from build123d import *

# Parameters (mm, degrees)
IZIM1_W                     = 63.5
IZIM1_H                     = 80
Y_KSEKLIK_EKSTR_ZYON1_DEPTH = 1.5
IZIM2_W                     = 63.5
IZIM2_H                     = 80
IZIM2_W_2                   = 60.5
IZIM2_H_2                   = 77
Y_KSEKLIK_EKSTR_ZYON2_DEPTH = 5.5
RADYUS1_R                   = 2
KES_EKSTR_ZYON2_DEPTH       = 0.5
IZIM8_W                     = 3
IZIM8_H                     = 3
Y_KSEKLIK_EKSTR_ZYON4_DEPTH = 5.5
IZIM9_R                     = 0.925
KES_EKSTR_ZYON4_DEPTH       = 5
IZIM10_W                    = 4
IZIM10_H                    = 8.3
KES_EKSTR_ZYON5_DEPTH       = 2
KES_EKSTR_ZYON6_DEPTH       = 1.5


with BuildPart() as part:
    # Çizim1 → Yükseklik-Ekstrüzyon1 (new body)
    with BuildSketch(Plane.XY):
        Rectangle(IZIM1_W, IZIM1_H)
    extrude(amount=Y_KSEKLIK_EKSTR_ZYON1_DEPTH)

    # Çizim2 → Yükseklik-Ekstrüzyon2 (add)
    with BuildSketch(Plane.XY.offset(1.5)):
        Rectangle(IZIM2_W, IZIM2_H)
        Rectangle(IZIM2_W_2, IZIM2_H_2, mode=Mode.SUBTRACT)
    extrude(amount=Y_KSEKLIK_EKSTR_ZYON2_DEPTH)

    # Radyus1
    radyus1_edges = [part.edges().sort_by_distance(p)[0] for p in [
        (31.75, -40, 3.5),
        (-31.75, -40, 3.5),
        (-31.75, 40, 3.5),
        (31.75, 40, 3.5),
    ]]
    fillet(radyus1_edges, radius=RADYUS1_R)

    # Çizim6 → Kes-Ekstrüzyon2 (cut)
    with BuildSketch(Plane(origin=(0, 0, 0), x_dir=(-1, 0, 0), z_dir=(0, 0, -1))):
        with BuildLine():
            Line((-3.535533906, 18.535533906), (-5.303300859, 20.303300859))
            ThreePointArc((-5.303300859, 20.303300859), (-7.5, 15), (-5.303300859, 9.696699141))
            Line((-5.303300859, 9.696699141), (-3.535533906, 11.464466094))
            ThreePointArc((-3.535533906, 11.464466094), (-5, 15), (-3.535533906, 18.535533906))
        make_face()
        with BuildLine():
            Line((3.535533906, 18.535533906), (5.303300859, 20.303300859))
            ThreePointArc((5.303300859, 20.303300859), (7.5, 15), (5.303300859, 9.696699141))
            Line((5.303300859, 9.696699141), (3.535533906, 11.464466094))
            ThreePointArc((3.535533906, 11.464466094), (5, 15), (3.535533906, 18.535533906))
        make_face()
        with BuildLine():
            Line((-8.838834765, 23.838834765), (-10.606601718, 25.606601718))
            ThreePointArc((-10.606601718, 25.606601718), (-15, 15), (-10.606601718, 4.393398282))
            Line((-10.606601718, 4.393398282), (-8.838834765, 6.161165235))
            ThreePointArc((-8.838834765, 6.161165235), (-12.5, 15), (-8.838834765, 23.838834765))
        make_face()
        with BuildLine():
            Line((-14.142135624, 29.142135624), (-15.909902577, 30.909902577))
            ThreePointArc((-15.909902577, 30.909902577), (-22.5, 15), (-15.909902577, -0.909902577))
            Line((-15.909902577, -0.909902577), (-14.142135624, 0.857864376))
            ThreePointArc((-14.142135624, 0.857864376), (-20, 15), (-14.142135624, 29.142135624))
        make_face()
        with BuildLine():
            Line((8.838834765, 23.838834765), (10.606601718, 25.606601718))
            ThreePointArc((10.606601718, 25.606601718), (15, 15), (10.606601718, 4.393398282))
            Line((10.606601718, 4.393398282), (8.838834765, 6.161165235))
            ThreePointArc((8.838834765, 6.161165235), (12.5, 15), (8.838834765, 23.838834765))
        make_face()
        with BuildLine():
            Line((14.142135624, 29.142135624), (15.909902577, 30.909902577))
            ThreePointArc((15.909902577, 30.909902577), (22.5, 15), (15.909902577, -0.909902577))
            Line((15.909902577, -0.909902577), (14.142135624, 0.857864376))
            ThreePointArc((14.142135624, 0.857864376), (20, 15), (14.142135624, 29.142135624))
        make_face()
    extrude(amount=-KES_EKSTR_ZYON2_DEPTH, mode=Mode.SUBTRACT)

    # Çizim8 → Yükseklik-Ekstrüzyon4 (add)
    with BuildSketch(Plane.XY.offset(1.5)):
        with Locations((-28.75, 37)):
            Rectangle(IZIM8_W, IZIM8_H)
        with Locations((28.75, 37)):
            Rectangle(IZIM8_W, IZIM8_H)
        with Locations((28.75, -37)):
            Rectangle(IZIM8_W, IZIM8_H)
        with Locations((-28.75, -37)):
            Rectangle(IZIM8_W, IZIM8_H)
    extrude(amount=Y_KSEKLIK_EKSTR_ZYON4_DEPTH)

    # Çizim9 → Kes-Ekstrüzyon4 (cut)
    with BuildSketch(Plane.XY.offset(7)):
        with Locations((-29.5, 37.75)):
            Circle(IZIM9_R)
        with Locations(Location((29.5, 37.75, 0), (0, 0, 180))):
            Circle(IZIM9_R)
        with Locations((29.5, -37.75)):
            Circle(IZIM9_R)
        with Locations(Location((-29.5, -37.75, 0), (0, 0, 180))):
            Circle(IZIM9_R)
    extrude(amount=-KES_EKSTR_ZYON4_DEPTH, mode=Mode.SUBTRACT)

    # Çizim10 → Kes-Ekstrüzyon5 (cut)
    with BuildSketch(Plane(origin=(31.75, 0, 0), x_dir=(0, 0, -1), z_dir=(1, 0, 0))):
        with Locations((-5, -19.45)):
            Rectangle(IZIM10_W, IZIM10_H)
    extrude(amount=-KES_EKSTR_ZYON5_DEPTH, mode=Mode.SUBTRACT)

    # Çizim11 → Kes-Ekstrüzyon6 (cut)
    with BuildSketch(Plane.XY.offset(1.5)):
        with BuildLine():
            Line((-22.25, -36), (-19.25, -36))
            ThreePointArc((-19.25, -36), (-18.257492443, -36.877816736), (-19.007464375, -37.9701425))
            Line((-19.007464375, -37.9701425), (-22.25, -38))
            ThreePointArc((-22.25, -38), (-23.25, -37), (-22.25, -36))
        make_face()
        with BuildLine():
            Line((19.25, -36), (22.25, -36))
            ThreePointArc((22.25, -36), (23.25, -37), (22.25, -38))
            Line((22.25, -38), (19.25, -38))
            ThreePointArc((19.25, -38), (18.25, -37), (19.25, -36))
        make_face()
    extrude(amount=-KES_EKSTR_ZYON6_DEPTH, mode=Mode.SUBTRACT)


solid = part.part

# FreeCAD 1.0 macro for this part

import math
import FreeCAD as App
import Part
import Sketcher
from FreeCAD import Vector
Q = App.Units.Quantity


def edges_at(feature, points):
    """Names of the edges that pass closest to the given points."""
    edges = feature.Shape.Edges
    near = lambda p: min(range(len(edges)), key=lambda i: edges[i].distToShape(Part.Vertex(*p))[0])
    return sorted({f"Edge{near(p) + 1}" for p in points})

doc = App.newDocument("Part")
body = doc.addObject("PartDesign::Body", "Body")

# Sketch on XY plane
sketch1 = body.newObject("Sketcher::SketchObject", "Sketch")
sketch1.AttachmentSupport = (doc.getObject("XY_Plane"), [""])
sketch1.MapMode = "FlatFace"
sketch1.addGeometry([
    Part.LineSegment(Vector(-32, 40, 0), Vector(-32, -40, 0)),
    Part.LineSegment(Vector(-32, -40, 0), Vector(32, -40, 0)),
    Part.LineSegment(Vector(32, -40, 0), Vector(32, 40, 0)),
    Part.LineSegment(Vector(32, 40, 0), Vector(-32, 40, 0)),
], False)
sketch1.addConstraint([
    Sketcher.Constraint("Coincident", 0, 2, 1, 1),
    Sketcher.Constraint("Coincident", 1, 2, 2, 1),
    Sketcher.Constraint("Coincident", 2, 2, 3, 1),
    Sketcher.Constraint("Coincident", 3, 2, 0, 1),
    Sketcher.Constraint("Vertical", 0),
    Sketcher.Constraint("Horizontal", 1),
    Sketcher.Constraint("Vertical", 2),
    Sketcher.Constraint("Horizontal", 3),
    Sketcher.Constraint("Symmetric", 0, 2, 2, 2, -1, 1),
    Sketcher.Constraint("DistanceY", 0, 2, 0, 1, Q("80 mm")),
    Sketcher.Constraint("DistanceX", 1, 1, 1, 2, Q("63.5 mm")),
])
pad1 = body.newObject("PartDesign::Pad", "Pad")
pad1.Profile = sketch1
pad1.Length = 1.5

# Sketch on XY plane
sketch2 = body.newObject("Sketcher::SketchObject", "Sketch001")
sketch2.AttachmentSupport = (doc.getObject("XY_Plane"), [""])
sketch2.MapMode = "FlatFace"
sketch2.AttachmentOffset = App.Placement(Vector(0, 0, 1.5), App.Rotation())
sketch2.addGeometry([
    Part.LineSegment(Vector(-32, 40, 0), Vector(-32, -40, 0)),  # 0
    Part.LineSegment(Vector(-32, -40, 0), Vector(32, -40, 0)),  # 1
    Part.LineSegment(Vector(32, -40, 0), Vector(32, 40, 0)),  # 2
    Part.LineSegment(Vector(32, 40, 0), Vector(-32, 40, 0)),  # 3
    Part.LineSegment(Vector(30, -38, 0), Vector(-30, -38, 0)),  # 4
    Part.LineSegment(Vector(-30, -38, 0), Vector(-30, 38, 0)),  # 5
    Part.LineSegment(Vector(-30, 38, 0), Vector(30, 38, 0)),  # 6
    Part.LineSegment(Vector(30, 38, 0), Vector(30, -38, 0)),  # 7
], False)
sketch2.addConstraint([
    Sketcher.Constraint("Coincident", 0, 2, 1, 1),
    Sketcher.Constraint("Coincident", 1, 2, 2, 1),
    Sketcher.Constraint("Coincident", 2, 2, 3, 1),
    Sketcher.Constraint("Coincident", 3, 2, 0, 1),
    Sketcher.Constraint("Coincident", 4, 2, 5, 1),
    Sketcher.Constraint("Coincident", 5, 2, 6, 1),
    Sketcher.Constraint("Coincident", 6, 2, 7, 1),
    Sketcher.Constraint("Coincident", 7, 2, 4, 1),
    Sketcher.Constraint("Vertical", 0),
    Sketcher.Constraint("Horizontal", 1),
    Sketcher.Constraint("Vertical", 2),
    Sketcher.Constraint("Horizontal", 3),
    Sketcher.Constraint("Horizontal", 4),
    Sketcher.Constraint("Vertical", 5),
    Sketcher.Constraint("Horizontal", 6),
    Sketcher.Constraint("Vertical", 7),
    Sketcher.Constraint("Symmetric", 0, 2, 2, 2, -1, 1),
    Sketcher.Constraint("Symmetric", 4, 2, 6, 2, -1, 1),
    Sketcher.Constraint("DistanceY", 0, 2, 0, 1, Q("80 mm")),
    Sketcher.Constraint("DistanceY", 5, 1, 5, 2, Q("77 mm")),
    Sketcher.Constraint("DistanceX", 1, 1, 1, 2, Q("63.5 mm")),
    Sketcher.Constraint("DistanceX", 4, 2, 4, 1, Q("60.5 mm")),
])
pad2 = body.newObject("PartDesign::Pad", "Pad001")
pad2.Profile = sketch2
pad2.Length = 5.5
doc.recompute()

fillet = body.newObject("PartDesign::Fillet", "Fillet")
fillet.Base = (pad2, edges_at(pad2, [
    (31.75, -40, 3.5),
    (-31.75, -40, 3.5),
    (-31.75, 40, 3.5),
    (31.75, 40, 3.5),
]))
fillet.Radius = 2

# Sketch on XY plane
sketch3 = body.newObject("Sketcher::SketchObject", "Sketch002")
sketch3.AttachmentSupport = (doc.getObject("XY_Plane"), [""])
sketch3.MapMode = "FlatFace"
sketch3.addGeometry([
    Part.LineSegment(Vector(3.5, 18.5, 0), Vector(5.3, 20.3, 0)),  # 0
    Part.ArcOfCircle(Part.Circle(Vector(0, 15, 0), Vector(0, 0, 1), 7.5), math.radians(-45), math.radians(45)),  # 1
    Part.LineSegment(Vector(5.3, 9.7, 0), Vector(3.5, 11.5, 0)),  # 2
    Part.ArcOfCircle(Part.Circle(Vector(0, 15, 0), Vector(0, 0, 1), 5), math.radians(-45), math.radians(45)),  # 3
    Part.LineSegment(Vector(-5.3, 20.3, 0), Vector(-3.5, 18.5, 0)),  # 4
    Part.ArcOfCircle(Part.Circle(Vector(0, 15, 0), Vector(0, 0, 1), 5), math.radians(135), math.radians(225)),  # 5
    Part.LineSegment(Vector(-3.5, 11.5, 0), Vector(-5.3, 9.7, 0)),  # 6
    Part.ArcOfCircle(Part.Circle(Vector(0, 15, 0), Vector(0, 0, 1), 7.5), math.radians(135), math.radians(225)),  # 7
    Part.LineSegment(Vector(8.8, 23.8, 0), Vector(10.6, 25.6, 0)),  # 8
    Part.ArcOfCircle(Part.Circle(Vector(0, 15, 0), Vector(0, 0, 1), 15), math.radians(-45), math.radians(45)),  # 9
    Part.LineSegment(Vector(10.6, 4.4, 0), Vector(8.8, 6.2, 0)),  # 10
    Part.ArcOfCircle(Part.Circle(Vector(0, 15, 0), Vector(0, 0, 1), 12.5), math.radians(-45), math.radians(45)),  # 11
    Part.LineSegment(Vector(14.1, 29.1, 0), Vector(15.9, 30.9, 0)),  # 12
    Part.ArcOfCircle(Part.Circle(Vector(0, 15, 0), Vector(0, 0, 1), 22.5), math.radians(-45), math.radians(45)),  # 13
    Part.LineSegment(Vector(15.9, -0.9, 0), Vector(14.1, 0.9, 0)),  # 14
    Part.ArcOfCircle(Part.Circle(Vector(0, 15, 0), Vector(0, 0, 1), 20), math.radians(-45), math.radians(45)),  # 15
    Part.LineSegment(Vector(-10.6, 25.6, 0), Vector(-8.8, 23.8, 0)),  # 16
    Part.ArcOfCircle(Part.Circle(Vector(0, 15, 0), Vector(0, 0, 1), 12.5), math.radians(135), math.radians(225)),  # 17
    Part.LineSegment(Vector(-8.8, 6.2, 0), Vector(-10.6, 4.4, 0)),  # 18
    Part.ArcOfCircle(Part.Circle(Vector(0, 15, 0), Vector(0, 0, 1), 15), math.radians(135), math.radians(225)),  # 19
    Part.LineSegment(Vector(-15.9, 30.9, 0), Vector(-14.1, 29.1, 0)),  # 20
    Part.ArcOfCircle(Part.Circle(Vector(0, 15, 0), Vector(0, 0, 1), 20), math.radians(135), math.radians(225)),  # 21
    Part.LineSegment(Vector(-14.1, 0.9, 0), Vector(-15.9, -0.9, 0)),  # 22
    Part.ArcOfCircle(Part.Circle(Vector(0, 15, 0), Vector(0, 0, 1), 22.5), math.radians(135), math.radians(225)),  # 23
], False)
sketch3.addConstraint([
    Sketcher.Constraint("Coincident", 0, 2, 1, 2),
    Sketcher.Constraint("Coincident", 1, 1, 2, 1),
    Sketcher.Constraint("Coincident", 2, 2, 3, 1),
    Sketcher.Constraint("Coincident", 3, 2, 0, 1),
    Sketcher.Constraint("Coincident", 4, 2, 5, 1),
    Sketcher.Constraint("Coincident", 5, 2, 6, 1),
    Sketcher.Constraint("Coincident", 6, 2, 7, 2),
    Sketcher.Constraint("Coincident", 7, 1, 4, 1),
    Sketcher.Constraint("Coincident", 8, 2, 9, 2),
    Sketcher.Constraint("Coincident", 9, 1, 10, 1),
    Sketcher.Constraint("Coincident", 10, 2, 11, 1),
    Sketcher.Constraint("Coincident", 11, 2, 8, 1),
    Sketcher.Constraint("Coincident", 12, 2, 13, 2),
    Sketcher.Constraint("Coincident", 13, 1, 14, 1),
    Sketcher.Constraint("Coincident", 14, 2, 15, 1),
    Sketcher.Constraint("Coincident", 15, 2, 12, 1),
    Sketcher.Constraint("Coincident", 16, 2, 17, 1),
    Sketcher.Constraint("Coincident", 17, 2, 18, 1),
    Sketcher.Constraint("Coincident", 18, 2, 19, 2),
    Sketcher.Constraint("Coincident", 19, 1, 16, 1),
    Sketcher.Constraint("Coincident", 20, 2, 21, 1),
    Sketcher.Constraint("Coincident", 21, 2, 22, 1),
    Sketcher.Constraint("Coincident", 22, 2, 23, 2),
    Sketcher.Constraint("Coincident", 23, 1, 20, 1),
    Sketcher.Constraint("Coincident", 3, 3, 1, 3),
    Sketcher.Constraint("Coincident", 5, 3, 1, 3),
    Sketcher.Constraint("Coincident", 7, 3, 1, 3),
    Sketcher.Constraint("Coincident", 9, 3, 1, 3),
    Sketcher.Constraint("Coincident", 11, 3, 1, 3),
    Sketcher.Constraint("Coincident", 13, 3, 1, 3),
    Sketcher.Constraint("Coincident", 15, 3, 1, 3),
    Sketcher.Constraint("Coincident", 17, 3, 1, 3),
    Sketcher.Constraint("Coincident", 19, 3, 1, 3),
    Sketcher.Constraint("Coincident", 21, 3, 1, 3),
    Sketcher.Constraint("Coincident", 23, 3, 1, 3),
    Sketcher.Constraint("Equal", 3, 5),
    Sketcher.Constraint("Equal", 1, 7),
    Sketcher.Constraint("Equal", 11, 17),
    Sketcher.Constraint("Equal", 9, 19),
    Sketcher.Constraint("Equal", 15, 21),
    Sketcher.Constraint("Equal", 13, 23),
    Sketcher.Constraint("Symmetric", 3, 2, 4, 2, -2),
    Sketcher.Constraint("Perpendicular", 0, 2),
    Sketcher.Constraint("Parallel", 2, 4),
    Sketcher.Constraint("Perpendicular", 4, 6),
    Sketcher.Constraint("Parallel", 6, 8),
    Sketcher.Constraint("Perpendicular", 8, 10),
    Sketcher.Constraint("Perpendicular", 10, 12),
    Sketcher.Constraint("Perpendicular", 12, 14),
    Sketcher.Constraint("Parallel", 14, 16),
    Sketcher.Constraint("Perpendicular", 16, 18),
    Sketcher.Constraint("Perpendicular", 18, 20),
    Sketcher.Constraint("Perpendicular", 20, 22),
    Sketcher.Constraint("Horizontal", 2, 2, 5, 2),
    Sketcher.Constraint("Horizontal", 1, 1, 6, 2),
    Sketcher.Constraint("Horizontal", 11, 2, 16, 2),
    Sketcher.Constraint("Horizontal", 10, 2, 17, 2),
    Sketcher.Constraint("Horizontal", 15, 2, 20, 2),
    Sketcher.Constraint("Horizontal", 14, 2, 21, 2),
    Sketcher.Constraint("Vertical", 0, 2, 1, 1),
    Sketcher.Constraint("Vertical", 8, 2, 9, 1),
    Sketcher.Constraint("Vertical", 12, 2, 13, 1),
    Sketcher.Constraint("Equal", 6, 8),
    Sketcher.Constraint("Equal", 10, 12),
    Sketcher.Constraint("Radius", 3, Q("5 mm")),
    Sketcher.Constraint("Radius", 9, Q("15 mm")),
    Sketcher.Constraint("Radius", 15, Q("20 mm")),
    Sketcher.Constraint("Radius", 1, Q("7.5 mm")),
    Sketcher.Constraint("DistanceY", -1, 1, 1, 3, Q("15 mm")),
    Sketcher.Constraint("DistanceX", -1, 1, 0, 2, Q("5.303301 mm")),
    Sketcher.Constraint("DistanceX", -1, 1, 8, 2, Q("10.606602 mm")),
    Sketcher.Constraint("DistanceX", 8, 2, 12, 2, Q("5.303301 mm")),
])
pocket1 = body.newObject("PartDesign::Pocket", "Pocket")
pocket1.Profile = sketch3
pocket1.Length = 0.5
pocket1.Reversed = True

# Sketch on XY plane
sketch4 = body.newObject("Sketcher::SketchObject", "Sketch003")
sketch4.AttachmentSupport = (doc.getObject("XY_Plane"), [""])
sketch4.MapMode = "FlatFace"
sketch4.AttachmentOffset = App.Placement(Vector(0, 0, 1.5), App.Rotation())
sketch4.addGeometry([
    Part.LineSegment(Vector(-30.2, 38.5, 0), Vector(-30.2, 35.5, 0)),  # 0
    Part.LineSegment(Vector(-30.2, 35.5, 0), Vector(-27.2, 35.5, 0)),  # 1
    Part.LineSegment(Vector(-27.2, 35.5, 0), Vector(-27.2, 38.5, 0)),  # 2
    Part.LineSegment(Vector(-27.2, 38.5, 0), Vector(-30.2, 38.5, 0)),  # 3
    Part.LineSegment(Vector(27.2, 38.5, 0), Vector(27.2, 35.5, 0)),  # 4
    Part.LineSegment(Vector(27.2, 35.5, 0), Vector(30.2, 35.5, 0)),  # 5
    Part.LineSegment(Vector(30.2, 35.5, 0), Vector(30.2, 38.5, 0)),  # 6
    Part.LineSegment(Vector(30.2, 38.5, 0), Vector(27.2, 38.5, 0)),  # 7
    Part.LineSegment(Vector(27.2, -35.5, 0), Vector(27.2, -38.5, 0)),  # 8
    Part.LineSegment(Vector(27.2, -38.5, 0), Vector(30.2, -38.5, 0)),  # 9
    Part.LineSegment(Vector(30.2, -38.5, 0), Vector(30.2, -35.5, 0)),  # 10
    Part.LineSegment(Vector(30.2, -35.5, 0), Vector(27.2, -35.5, 0)),  # 11
    Part.LineSegment(Vector(-30.2, -35.5, 0), Vector(-30.2, -38.5, 0)),  # 12
    Part.LineSegment(Vector(-30.2, -38.5, 0), Vector(-27.2, -38.5, 0)),  # 13
    Part.LineSegment(Vector(-27.2, -38.5, 0), Vector(-27.2, -35.5, 0)),  # 14
    Part.LineSegment(Vector(-27.2, -35.5, 0), Vector(-30.2, -35.5, 0)),  # 15
], False)
sketch4.addConstraint([
    Sketcher.Constraint("Coincident", 0, 2, 1, 1),
    Sketcher.Constraint("Coincident", 1, 2, 2, 1),
    Sketcher.Constraint("Coincident", 2, 2, 3, 1),
    Sketcher.Constraint("Coincident", 3, 2, 0, 1),
    Sketcher.Constraint("Coincident", 4, 2, 5, 1),
    Sketcher.Constraint("Coincident", 5, 2, 6, 1),
    Sketcher.Constraint("Coincident", 6, 2, 7, 1),
    Sketcher.Constraint("Coincident", 7, 2, 4, 1),
    Sketcher.Constraint("Coincident", 8, 2, 9, 1),
    Sketcher.Constraint("Coincident", 9, 2, 10, 1),
    Sketcher.Constraint("Coincident", 10, 2, 11, 1),
    Sketcher.Constraint("Coincident", 11, 2, 8, 1),
    Sketcher.Constraint("Coincident", 12, 2, 13, 1),
    Sketcher.Constraint("Coincident", 13, 2, 14, 1),
    Sketcher.Constraint("Coincident", 14, 2, 15, 1),
    Sketcher.Constraint("Coincident", 15, 2, 12, 1),
    Sketcher.Constraint("Vertical", 0),
    Sketcher.Constraint("Horizontal", 1),
    Sketcher.Constraint("Vertical", 2),
    Sketcher.Constraint("Horizontal", 3),
    Sketcher.Constraint("Vertical", 4),
    Sketcher.Constraint("Horizontal", 5),
    Sketcher.Constraint("Vertical", 6),
    Sketcher.Constraint("Horizontal", 7),
    Sketcher.Constraint("Vertical", 8),
    Sketcher.Constraint("Horizontal", 9),
    Sketcher.Constraint("Vertical", 10),
    Sketcher.Constraint("Horizontal", 11),
    Sketcher.Constraint("Vertical", 12),
    Sketcher.Constraint("Horizontal", 13),
    Sketcher.Constraint("Vertical", 14),
    Sketcher.Constraint("Horizontal", 15),
    Sketcher.Constraint("Symmetric", 2, 2, 8, 2, -1, 1),
    Sketcher.Constraint("Symmetric", 0, 2, 10, 2, -1, 1),
    Sketcher.Constraint("Symmetric", 6, 2, 12, 2, -1, 1),
    Sketcher.Constraint("Symmetric", 4, 2, 14, 2, -1, 1),
    Sketcher.Constraint("Symmetric", 1, 2, 4, 2, -2),
    Sketcher.Constraint("Symmetric", 3, 2, 6, 2, -2),
    Sketcher.Constraint("Equal", 15, 0),
    Sketcher.Constraint("DistanceX", 1, 1, 1, 2, Q("3 mm")),
    Sketcher.Constraint("DistanceY", 8, 2, 4, 2, Q("74 mm")),
    Sketcher.Constraint("DistanceX", 1, 2, 4, 2, Q("54.5 mm")),
])
pad3 = body.newObject("PartDesign::Pad", "Pad002")
pad3.Profile = sketch4
pad3.Length = 5.5

# Sketch on XY plane
sketch5 = body.newObject("Sketcher::SketchObject", "Sketch004")
sketch5.AttachmentSupport = (doc.getObject("XY_Plane"), [""])
sketch5.MapMode = "FlatFace"
sketch5.AttachmentOffset = App.Placement(Vector(0, 0, 7), App.Rotation())
sketch5.addGeometry([
    Part.Circle(Vector(-29.5, 37.8, 0), Vector(0, 0, 1), 0.9),
    Part.Circle(Vector(29.5, 37.8, 0), Vector(0, 0, 1), 0.9),
    Part.Circle(Vector(29.5, -37.8, 0), Vector(0, 0, 1), 0.9),
    Part.Circle(Vector(-29.5, -37.8, 0), Vector(0, 0, 1), 0.9),
], False)
sketch5.addConstraint([
    Sketcher.Constraint("Equal", 0, 1),
    Sketcher.Constraint("Equal", 1, 2),
    Sketcher.Constraint("Equal", 2, 3),
    Sketcher.Constraint("Symmetric", 0, 3, 2, 3, -1, 1),
    Sketcher.Constraint("Symmetric", 1, 3, 3, 3, -1, 1),
    Sketcher.Constraint("Symmetric", 0, 3, 1, 3, -2),
    Sketcher.Constraint("Diameter", 0, Q("1.85 mm")),
    Sketcher.Constraint("DistanceX", 0, 3, 1, 3, Q("59 mm")),
    Sketcher.Constraint("DistanceY", 2, 3, 1, 3, Q("75.5 mm")),
])
pocket2 = body.newObject("PartDesign::Pocket", "Pocket001")
pocket2.Profile = sketch5
pocket2.Length = 5

# Sketch on YZ plane
sketch6 = body.newObject("Sketcher::SketchObject", "Sketch005")
sketch6.AttachmentSupport = (doc.getObject("YZ_Plane"), [""])
sketch6.MapMode = "FlatFace"
sketch6.AttachmentOffset = App.Placement(Vector(0, 0, 31.75), App.Rotation())
sketch6.addGeometry([
    Part.LineSegment(Vector(-15.3, 7, 0), Vector(-23.6, 7, 0)),
    Part.LineSegment(Vector(-23.6, 7, 0), Vector(-23.6, 3, 0)),
    Part.LineSegment(Vector(-23.6, 3, 0), Vector(-15.3, 3, 0)),
    Part.LineSegment(Vector(-15.3, 3, 0), Vector(-15.3, 7, 0)),
], False)
sketch6.addConstraint([
    Sketcher.Constraint("Coincident", 0, 2, 1, 1),
    Sketcher.Constraint("Coincident", 1, 2, 2, 1),
    Sketcher.Constraint("Coincident", 2, 2, 3, 1),
    Sketcher.Constraint("Coincident", 3, 2, 0, 1),
    Sketcher.Constraint("Horizontal", 0),
    Sketcher.Constraint("Vertical", 1),
    Sketcher.Constraint("Horizontal", 2),
    Sketcher.Constraint("Vertical", 3),
    Sketcher.Constraint("DistanceY", 1, 2, 1, 1, Q("4 mm")),
    Sketcher.Constraint("DistanceX", 0, 2, 0, 1, Q("8.3 mm")),
    Sketcher.Constraint("DistanceY", -1, 1, 0, 2, Q("7 mm")),
    Sketcher.Constraint("DistanceX", 0, 2, -1, 1, Q("23.6 mm")),
])
pocket3 = body.newObject("PartDesign::Pocket", "Pocket002")
pocket3.Profile = sketch6
pocket3.Length = 2

# Sketch on XY plane
sketch7 = body.newObject("Sketcher::SketchObject", "Sketch006")
sketch7.AttachmentSupport = (doc.getObject("XY_Plane"), [""])
sketch7.MapMode = "FlatFace"
sketch7.AttachmentOffset = App.Placement(Vector(0, 0, 1.5), App.Rotation())
sketch7.addGeometry([
    Part.LineSegment(Vector(-19.2, -36, 0), Vector(-22.2, -36, 0)),  # 0
    Part.ArcOfCircle(Part.Circle(Vector(-22.2, -37, 0), Vector(0, 0, 1), 1), math.radians(90), math.radians(270)),  # 1
    Part.LineSegment(Vector(-22.2, -38, 0), Vector(-19, -38, 0)),  # 2
    Part.ArcOfCircle(Part.Circle(Vector(-19.2, -37, 0), Vector(0, 0, 1), 1), math.radians(-76), math.radians(90)),  # 3
    Part.LineSegment(Vector(22.2, -36, 0), Vector(19.2, -36, 0)),  # 4
    Part.ArcOfCircle(Part.Circle(Vector(19.2, -37, 0), Vector(0, 0, 1), 1), math.radians(90), math.radians(270)),  # 5
    Part.LineSegment(Vector(19.2, -38, 0), Vector(22.2, -38, 0)),  # 6
    Part.ArcOfCircle(Part.Circle(Vector(22.2, -37, 0), Vector(0, 0, 1), 1), math.radians(-90), math.radians(90)),  # 7
], False)
sketch7.addConstraint([
    Sketcher.Constraint("Tangent", 0, 2, 1, 1),
    Sketcher.Constraint("Coincident", 1, 2, 2, 1),
    Sketcher.Constraint("Coincident", 2, 2, 3, 1),
    Sketcher.Constraint("Tangent", 3, 2, 0, 1),
    Sketcher.Constraint("Tangent", 4, 2, 5, 1),
    Sketcher.Constraint("Tangent", 5, 2, 6, 1),
    Sketcher.Constraint("Tangent", 6, 2, 7, 1),
    Sketcher.Constraint("Tangent", 7, 2, 4, 1),
    Sketcher.Constraint("Horizontal", 0),
    Sketcher.Constraint("Horizontal", 4),
    Sketcher.Constraint("Horizontal", 6),
    Sketcher.Constraint("Equal", 1, 3),
    Sketcher.Constraint("Equal", 3, 5),
    Sketcher.Constraint("Symmetric", 3, 3, 5, 3, -2),
    Sketcher.Constraint("Vertical", 0, 2, 1, 2),
    Sketcher.Constraint("Equal", 0, 4),
    Sketcher.Constraint("Radius", 1, Q("1 mm")),
    Sketcher.Constraint("DistanceX", 0, 2, 0, 1, Q("3 mm")),
    Sketcher.Constraint("DistanceY", 1, 3, -1, 1, Q("37 mm")),
    Sketcher.Constraint("DistanceX", 3, 3, 5, 3, Q("38.5 mm")),
    Sketcher.Constraint("Distance", 2, Q("3.242673 mm")),
])
pocket4 = body.newObject("PartDesign::Pocket", "Pocket003")
pocket4.Profile = sketch7
pocket4.Length = 1.5

doc.recompute()
